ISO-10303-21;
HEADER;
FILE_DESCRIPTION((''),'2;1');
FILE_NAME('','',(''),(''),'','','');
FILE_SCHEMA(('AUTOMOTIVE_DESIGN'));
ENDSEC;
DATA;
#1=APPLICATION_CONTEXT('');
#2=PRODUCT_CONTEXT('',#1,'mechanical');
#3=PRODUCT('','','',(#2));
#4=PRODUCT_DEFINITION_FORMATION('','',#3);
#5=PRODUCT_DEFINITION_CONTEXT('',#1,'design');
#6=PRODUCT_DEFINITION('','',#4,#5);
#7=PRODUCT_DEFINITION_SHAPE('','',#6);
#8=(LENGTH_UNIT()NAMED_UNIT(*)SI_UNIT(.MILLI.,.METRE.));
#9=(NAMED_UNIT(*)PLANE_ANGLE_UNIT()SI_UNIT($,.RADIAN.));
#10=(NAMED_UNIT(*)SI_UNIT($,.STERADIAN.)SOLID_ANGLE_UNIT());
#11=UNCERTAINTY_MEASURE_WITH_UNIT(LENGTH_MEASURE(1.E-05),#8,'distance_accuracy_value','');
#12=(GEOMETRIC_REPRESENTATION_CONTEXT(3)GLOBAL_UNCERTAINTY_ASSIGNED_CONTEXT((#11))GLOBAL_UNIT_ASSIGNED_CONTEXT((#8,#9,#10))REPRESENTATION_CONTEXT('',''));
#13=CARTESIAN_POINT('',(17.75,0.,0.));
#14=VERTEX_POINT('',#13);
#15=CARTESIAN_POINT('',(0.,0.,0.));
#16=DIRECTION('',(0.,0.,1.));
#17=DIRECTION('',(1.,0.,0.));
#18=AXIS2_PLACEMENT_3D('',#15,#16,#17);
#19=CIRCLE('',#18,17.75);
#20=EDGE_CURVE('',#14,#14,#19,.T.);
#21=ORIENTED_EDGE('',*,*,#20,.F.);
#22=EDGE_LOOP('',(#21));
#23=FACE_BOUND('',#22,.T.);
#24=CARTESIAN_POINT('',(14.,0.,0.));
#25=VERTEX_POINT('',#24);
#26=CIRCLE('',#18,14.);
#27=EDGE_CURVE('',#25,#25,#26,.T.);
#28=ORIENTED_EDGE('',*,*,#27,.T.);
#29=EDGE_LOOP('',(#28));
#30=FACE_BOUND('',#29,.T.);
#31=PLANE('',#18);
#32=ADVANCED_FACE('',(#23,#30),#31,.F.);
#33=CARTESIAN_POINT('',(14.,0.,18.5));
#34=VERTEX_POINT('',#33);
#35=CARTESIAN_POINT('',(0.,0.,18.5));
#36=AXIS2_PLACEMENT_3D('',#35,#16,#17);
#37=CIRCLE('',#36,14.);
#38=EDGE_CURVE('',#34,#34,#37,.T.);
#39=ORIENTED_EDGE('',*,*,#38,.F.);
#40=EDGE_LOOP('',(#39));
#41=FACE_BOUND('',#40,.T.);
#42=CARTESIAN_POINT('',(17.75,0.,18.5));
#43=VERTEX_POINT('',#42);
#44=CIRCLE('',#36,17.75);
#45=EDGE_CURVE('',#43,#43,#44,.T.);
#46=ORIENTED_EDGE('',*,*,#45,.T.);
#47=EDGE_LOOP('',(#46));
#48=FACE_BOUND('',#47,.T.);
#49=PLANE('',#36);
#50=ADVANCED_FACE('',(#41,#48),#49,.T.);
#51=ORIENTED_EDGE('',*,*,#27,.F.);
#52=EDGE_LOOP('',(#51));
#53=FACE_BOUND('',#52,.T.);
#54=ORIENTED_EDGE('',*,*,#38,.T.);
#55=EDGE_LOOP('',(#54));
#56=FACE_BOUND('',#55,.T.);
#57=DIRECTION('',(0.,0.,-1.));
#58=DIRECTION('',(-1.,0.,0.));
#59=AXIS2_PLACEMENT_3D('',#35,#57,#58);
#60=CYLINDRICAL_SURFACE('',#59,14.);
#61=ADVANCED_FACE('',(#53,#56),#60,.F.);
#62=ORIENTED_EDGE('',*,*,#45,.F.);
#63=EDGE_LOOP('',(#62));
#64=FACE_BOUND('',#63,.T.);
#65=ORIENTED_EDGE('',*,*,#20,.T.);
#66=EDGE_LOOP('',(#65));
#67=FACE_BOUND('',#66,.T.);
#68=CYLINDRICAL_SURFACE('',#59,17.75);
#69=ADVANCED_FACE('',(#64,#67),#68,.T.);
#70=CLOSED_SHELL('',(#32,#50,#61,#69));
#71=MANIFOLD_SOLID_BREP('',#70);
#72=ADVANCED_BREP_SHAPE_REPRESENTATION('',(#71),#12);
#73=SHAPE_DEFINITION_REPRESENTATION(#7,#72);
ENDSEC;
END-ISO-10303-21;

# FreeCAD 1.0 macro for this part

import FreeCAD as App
import Part
import Sketcher

V = App.Vector
Q = App.Units.Quantity

doc = App.newDocument("Part")
body = doc.addObject("PartDesign::Body", "Body")

sketch1 = body.newObject("Sketcher::SketchObject", "Sketch")
sketch1.AttachmentSupport = (doc.getObject("XY_Plane"), [""])
sketch1.MapMode = "FlatFace"
sketch1.addGeometry([
    Part.Circle(V(0, 0, 0), V(0, 0, 1), 18),
    Part.Circle(V(0, 0, 0), V(0, 0, 1), 14),
], False)
sketch1.addConstraint([
    Sketcher.Constraint("Coincident", 0, 3, -1, 1),
    Sketcher.Constraint("Coincident", 1, 3, -1, 1),
    Sketcher.Constraint("Diameter", 1, Q("28 mm")),
    Sketcher.Constraint("Diameter", 0, Q("35.5 mm")),
])
pad1 = body.newObject("PartDesign::Pad", "Pad")
pad1.Profile = sketch1
pad1.Length = 18.5

doc.recompute()
